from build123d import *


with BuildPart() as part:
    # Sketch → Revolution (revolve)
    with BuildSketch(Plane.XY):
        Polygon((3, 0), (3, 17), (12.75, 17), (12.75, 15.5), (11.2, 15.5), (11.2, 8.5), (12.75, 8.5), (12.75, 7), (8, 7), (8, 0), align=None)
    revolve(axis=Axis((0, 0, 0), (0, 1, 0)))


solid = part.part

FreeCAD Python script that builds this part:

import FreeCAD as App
import Part
import Sketcher

V = App.Vector

doc = App.newDocument("Part")
body = doc.addObject("PartDesign::Body", "Body")

# Sketch on XY plane
sketch1 = body.newObject("Sketcher::SketchObject", "Sketch")
sketch1.AttachmentSupport = (doc.getObject("XY_Plane"), [""])
sketch1.MapMode = "FlatFace"
sketch1.addGeometry([
    Part.LineSegment(V(3, 17, 0), V(3, 0, 0)),  # 0
    Part.LineSegment(V(3, 0, 0), V(8, 0, 0)),  # 1
    Part.LineSegment(V(8, 0, 0), V(8, 7, 0)),  # 2
    Part.LineSegment(V(8, 7, 0), V(12.8, 7, 0)),  # 3
    Part.LineSegment(V(12.8, 7, 0), V(12.8, 8.5, 0)),  # 4
    Part.LineSegment(V(12.8, 8.5, 0), V(11.2, 8.5, 0)),  # 5
    Part.LineSegment(V(11.2, 8.5, 0), V(11.2, 15.5, 0)),  # 6
    Part.LineSegment(V(11.2, 15.5, 0), V(12.8, 15.5, 0)),  # 7
    Part.LineSegment(V(12.8, 15.5, 0), V(12.8, 17, 0)),  # 8
    Part.LineSegment(V(12.8, 17, 0), V(3, 17, 0)),  # 9
], False)
sketch1.addConstraint([
    Sketcher.Constraint("Coincident", 0, 2, 1, 1),
    Sketcher.Constraint("Coincident", 1, 2, 2, 1),
    Sketcher.Constraint("Coincident", 2, 2, 3, 1),
    Sketcher.Constraint("Coincident", 3, 2, 4, 1),
    Sketcher.Constraint("Coincident", 4, 2, 5, 1),
    Sketcher.Constraint("Coincident", 5, 2, 6, 1),
    Sketcher.Constraint("Coincident", 6, 2, 7, 1),
    Sketcher.Constraint("Coincident", 7, 2, 8, 1),
    Sketcher.Constraint("Coincident", 8, 2, 9, 1),
    Sketcher.Constraint("Coincident", 9, 2, 0, 1),
    Sketcher.Constraint("Vertical", 0),
    Sketcher.Constraint("Horizontal", 1),
    Sketcher.Constraint("Vertical", 2),
    Sketcher.Constraint("Horizontal", 3),
    Sketcher.Constraint("Vertical", 4),
    Sketcher.Constraint("Horizontal", 5),
    Sketcher.Constraint("Vertical", 6),
    Sketcher.Constraint("Horizontal", 7),
    Sketcher.Constraint("Vertical", 8),
    Sketcher.Constraint("Horizontal", 9),
    Sketcher.Constraint("PointOnObject", 0, 2, -1),
    Sketcher.Constraint("Vertical", 4, 2, 7, 2),
    Sketcher.Constraint("Equal", 2, 6),
    Sketcher.Constraint("Equal", 4, 8),
    Sketcher.Constraint("DistanceX", 1, 1, 1, 2, 5.0),
    Sketcher.Constraint("DistanceY", 0, 2, 0, 1, 17.0),
    Sketcher.Constraint("DistanceY", 2, 1, 2, 2, 7.0),
    Sketcher.Constraint("DistanceX", -1, 1, 0, 2, 3.0),
    Sketcher.Constraint("DistanceX", 3, 1, 3, 2, 4.75),
    Sketcher.Constraint("DistanceX", 5, 2, 5, 1, 1.55),
])
revolution = body.newObject("PartDesign::Revolution", "Revolution")
revolution.Profile = sketch1
revolution.ReferenceAxis = (sketch1, ["V_Axis"])
revolution.Angle = 360

doc.recompute()
